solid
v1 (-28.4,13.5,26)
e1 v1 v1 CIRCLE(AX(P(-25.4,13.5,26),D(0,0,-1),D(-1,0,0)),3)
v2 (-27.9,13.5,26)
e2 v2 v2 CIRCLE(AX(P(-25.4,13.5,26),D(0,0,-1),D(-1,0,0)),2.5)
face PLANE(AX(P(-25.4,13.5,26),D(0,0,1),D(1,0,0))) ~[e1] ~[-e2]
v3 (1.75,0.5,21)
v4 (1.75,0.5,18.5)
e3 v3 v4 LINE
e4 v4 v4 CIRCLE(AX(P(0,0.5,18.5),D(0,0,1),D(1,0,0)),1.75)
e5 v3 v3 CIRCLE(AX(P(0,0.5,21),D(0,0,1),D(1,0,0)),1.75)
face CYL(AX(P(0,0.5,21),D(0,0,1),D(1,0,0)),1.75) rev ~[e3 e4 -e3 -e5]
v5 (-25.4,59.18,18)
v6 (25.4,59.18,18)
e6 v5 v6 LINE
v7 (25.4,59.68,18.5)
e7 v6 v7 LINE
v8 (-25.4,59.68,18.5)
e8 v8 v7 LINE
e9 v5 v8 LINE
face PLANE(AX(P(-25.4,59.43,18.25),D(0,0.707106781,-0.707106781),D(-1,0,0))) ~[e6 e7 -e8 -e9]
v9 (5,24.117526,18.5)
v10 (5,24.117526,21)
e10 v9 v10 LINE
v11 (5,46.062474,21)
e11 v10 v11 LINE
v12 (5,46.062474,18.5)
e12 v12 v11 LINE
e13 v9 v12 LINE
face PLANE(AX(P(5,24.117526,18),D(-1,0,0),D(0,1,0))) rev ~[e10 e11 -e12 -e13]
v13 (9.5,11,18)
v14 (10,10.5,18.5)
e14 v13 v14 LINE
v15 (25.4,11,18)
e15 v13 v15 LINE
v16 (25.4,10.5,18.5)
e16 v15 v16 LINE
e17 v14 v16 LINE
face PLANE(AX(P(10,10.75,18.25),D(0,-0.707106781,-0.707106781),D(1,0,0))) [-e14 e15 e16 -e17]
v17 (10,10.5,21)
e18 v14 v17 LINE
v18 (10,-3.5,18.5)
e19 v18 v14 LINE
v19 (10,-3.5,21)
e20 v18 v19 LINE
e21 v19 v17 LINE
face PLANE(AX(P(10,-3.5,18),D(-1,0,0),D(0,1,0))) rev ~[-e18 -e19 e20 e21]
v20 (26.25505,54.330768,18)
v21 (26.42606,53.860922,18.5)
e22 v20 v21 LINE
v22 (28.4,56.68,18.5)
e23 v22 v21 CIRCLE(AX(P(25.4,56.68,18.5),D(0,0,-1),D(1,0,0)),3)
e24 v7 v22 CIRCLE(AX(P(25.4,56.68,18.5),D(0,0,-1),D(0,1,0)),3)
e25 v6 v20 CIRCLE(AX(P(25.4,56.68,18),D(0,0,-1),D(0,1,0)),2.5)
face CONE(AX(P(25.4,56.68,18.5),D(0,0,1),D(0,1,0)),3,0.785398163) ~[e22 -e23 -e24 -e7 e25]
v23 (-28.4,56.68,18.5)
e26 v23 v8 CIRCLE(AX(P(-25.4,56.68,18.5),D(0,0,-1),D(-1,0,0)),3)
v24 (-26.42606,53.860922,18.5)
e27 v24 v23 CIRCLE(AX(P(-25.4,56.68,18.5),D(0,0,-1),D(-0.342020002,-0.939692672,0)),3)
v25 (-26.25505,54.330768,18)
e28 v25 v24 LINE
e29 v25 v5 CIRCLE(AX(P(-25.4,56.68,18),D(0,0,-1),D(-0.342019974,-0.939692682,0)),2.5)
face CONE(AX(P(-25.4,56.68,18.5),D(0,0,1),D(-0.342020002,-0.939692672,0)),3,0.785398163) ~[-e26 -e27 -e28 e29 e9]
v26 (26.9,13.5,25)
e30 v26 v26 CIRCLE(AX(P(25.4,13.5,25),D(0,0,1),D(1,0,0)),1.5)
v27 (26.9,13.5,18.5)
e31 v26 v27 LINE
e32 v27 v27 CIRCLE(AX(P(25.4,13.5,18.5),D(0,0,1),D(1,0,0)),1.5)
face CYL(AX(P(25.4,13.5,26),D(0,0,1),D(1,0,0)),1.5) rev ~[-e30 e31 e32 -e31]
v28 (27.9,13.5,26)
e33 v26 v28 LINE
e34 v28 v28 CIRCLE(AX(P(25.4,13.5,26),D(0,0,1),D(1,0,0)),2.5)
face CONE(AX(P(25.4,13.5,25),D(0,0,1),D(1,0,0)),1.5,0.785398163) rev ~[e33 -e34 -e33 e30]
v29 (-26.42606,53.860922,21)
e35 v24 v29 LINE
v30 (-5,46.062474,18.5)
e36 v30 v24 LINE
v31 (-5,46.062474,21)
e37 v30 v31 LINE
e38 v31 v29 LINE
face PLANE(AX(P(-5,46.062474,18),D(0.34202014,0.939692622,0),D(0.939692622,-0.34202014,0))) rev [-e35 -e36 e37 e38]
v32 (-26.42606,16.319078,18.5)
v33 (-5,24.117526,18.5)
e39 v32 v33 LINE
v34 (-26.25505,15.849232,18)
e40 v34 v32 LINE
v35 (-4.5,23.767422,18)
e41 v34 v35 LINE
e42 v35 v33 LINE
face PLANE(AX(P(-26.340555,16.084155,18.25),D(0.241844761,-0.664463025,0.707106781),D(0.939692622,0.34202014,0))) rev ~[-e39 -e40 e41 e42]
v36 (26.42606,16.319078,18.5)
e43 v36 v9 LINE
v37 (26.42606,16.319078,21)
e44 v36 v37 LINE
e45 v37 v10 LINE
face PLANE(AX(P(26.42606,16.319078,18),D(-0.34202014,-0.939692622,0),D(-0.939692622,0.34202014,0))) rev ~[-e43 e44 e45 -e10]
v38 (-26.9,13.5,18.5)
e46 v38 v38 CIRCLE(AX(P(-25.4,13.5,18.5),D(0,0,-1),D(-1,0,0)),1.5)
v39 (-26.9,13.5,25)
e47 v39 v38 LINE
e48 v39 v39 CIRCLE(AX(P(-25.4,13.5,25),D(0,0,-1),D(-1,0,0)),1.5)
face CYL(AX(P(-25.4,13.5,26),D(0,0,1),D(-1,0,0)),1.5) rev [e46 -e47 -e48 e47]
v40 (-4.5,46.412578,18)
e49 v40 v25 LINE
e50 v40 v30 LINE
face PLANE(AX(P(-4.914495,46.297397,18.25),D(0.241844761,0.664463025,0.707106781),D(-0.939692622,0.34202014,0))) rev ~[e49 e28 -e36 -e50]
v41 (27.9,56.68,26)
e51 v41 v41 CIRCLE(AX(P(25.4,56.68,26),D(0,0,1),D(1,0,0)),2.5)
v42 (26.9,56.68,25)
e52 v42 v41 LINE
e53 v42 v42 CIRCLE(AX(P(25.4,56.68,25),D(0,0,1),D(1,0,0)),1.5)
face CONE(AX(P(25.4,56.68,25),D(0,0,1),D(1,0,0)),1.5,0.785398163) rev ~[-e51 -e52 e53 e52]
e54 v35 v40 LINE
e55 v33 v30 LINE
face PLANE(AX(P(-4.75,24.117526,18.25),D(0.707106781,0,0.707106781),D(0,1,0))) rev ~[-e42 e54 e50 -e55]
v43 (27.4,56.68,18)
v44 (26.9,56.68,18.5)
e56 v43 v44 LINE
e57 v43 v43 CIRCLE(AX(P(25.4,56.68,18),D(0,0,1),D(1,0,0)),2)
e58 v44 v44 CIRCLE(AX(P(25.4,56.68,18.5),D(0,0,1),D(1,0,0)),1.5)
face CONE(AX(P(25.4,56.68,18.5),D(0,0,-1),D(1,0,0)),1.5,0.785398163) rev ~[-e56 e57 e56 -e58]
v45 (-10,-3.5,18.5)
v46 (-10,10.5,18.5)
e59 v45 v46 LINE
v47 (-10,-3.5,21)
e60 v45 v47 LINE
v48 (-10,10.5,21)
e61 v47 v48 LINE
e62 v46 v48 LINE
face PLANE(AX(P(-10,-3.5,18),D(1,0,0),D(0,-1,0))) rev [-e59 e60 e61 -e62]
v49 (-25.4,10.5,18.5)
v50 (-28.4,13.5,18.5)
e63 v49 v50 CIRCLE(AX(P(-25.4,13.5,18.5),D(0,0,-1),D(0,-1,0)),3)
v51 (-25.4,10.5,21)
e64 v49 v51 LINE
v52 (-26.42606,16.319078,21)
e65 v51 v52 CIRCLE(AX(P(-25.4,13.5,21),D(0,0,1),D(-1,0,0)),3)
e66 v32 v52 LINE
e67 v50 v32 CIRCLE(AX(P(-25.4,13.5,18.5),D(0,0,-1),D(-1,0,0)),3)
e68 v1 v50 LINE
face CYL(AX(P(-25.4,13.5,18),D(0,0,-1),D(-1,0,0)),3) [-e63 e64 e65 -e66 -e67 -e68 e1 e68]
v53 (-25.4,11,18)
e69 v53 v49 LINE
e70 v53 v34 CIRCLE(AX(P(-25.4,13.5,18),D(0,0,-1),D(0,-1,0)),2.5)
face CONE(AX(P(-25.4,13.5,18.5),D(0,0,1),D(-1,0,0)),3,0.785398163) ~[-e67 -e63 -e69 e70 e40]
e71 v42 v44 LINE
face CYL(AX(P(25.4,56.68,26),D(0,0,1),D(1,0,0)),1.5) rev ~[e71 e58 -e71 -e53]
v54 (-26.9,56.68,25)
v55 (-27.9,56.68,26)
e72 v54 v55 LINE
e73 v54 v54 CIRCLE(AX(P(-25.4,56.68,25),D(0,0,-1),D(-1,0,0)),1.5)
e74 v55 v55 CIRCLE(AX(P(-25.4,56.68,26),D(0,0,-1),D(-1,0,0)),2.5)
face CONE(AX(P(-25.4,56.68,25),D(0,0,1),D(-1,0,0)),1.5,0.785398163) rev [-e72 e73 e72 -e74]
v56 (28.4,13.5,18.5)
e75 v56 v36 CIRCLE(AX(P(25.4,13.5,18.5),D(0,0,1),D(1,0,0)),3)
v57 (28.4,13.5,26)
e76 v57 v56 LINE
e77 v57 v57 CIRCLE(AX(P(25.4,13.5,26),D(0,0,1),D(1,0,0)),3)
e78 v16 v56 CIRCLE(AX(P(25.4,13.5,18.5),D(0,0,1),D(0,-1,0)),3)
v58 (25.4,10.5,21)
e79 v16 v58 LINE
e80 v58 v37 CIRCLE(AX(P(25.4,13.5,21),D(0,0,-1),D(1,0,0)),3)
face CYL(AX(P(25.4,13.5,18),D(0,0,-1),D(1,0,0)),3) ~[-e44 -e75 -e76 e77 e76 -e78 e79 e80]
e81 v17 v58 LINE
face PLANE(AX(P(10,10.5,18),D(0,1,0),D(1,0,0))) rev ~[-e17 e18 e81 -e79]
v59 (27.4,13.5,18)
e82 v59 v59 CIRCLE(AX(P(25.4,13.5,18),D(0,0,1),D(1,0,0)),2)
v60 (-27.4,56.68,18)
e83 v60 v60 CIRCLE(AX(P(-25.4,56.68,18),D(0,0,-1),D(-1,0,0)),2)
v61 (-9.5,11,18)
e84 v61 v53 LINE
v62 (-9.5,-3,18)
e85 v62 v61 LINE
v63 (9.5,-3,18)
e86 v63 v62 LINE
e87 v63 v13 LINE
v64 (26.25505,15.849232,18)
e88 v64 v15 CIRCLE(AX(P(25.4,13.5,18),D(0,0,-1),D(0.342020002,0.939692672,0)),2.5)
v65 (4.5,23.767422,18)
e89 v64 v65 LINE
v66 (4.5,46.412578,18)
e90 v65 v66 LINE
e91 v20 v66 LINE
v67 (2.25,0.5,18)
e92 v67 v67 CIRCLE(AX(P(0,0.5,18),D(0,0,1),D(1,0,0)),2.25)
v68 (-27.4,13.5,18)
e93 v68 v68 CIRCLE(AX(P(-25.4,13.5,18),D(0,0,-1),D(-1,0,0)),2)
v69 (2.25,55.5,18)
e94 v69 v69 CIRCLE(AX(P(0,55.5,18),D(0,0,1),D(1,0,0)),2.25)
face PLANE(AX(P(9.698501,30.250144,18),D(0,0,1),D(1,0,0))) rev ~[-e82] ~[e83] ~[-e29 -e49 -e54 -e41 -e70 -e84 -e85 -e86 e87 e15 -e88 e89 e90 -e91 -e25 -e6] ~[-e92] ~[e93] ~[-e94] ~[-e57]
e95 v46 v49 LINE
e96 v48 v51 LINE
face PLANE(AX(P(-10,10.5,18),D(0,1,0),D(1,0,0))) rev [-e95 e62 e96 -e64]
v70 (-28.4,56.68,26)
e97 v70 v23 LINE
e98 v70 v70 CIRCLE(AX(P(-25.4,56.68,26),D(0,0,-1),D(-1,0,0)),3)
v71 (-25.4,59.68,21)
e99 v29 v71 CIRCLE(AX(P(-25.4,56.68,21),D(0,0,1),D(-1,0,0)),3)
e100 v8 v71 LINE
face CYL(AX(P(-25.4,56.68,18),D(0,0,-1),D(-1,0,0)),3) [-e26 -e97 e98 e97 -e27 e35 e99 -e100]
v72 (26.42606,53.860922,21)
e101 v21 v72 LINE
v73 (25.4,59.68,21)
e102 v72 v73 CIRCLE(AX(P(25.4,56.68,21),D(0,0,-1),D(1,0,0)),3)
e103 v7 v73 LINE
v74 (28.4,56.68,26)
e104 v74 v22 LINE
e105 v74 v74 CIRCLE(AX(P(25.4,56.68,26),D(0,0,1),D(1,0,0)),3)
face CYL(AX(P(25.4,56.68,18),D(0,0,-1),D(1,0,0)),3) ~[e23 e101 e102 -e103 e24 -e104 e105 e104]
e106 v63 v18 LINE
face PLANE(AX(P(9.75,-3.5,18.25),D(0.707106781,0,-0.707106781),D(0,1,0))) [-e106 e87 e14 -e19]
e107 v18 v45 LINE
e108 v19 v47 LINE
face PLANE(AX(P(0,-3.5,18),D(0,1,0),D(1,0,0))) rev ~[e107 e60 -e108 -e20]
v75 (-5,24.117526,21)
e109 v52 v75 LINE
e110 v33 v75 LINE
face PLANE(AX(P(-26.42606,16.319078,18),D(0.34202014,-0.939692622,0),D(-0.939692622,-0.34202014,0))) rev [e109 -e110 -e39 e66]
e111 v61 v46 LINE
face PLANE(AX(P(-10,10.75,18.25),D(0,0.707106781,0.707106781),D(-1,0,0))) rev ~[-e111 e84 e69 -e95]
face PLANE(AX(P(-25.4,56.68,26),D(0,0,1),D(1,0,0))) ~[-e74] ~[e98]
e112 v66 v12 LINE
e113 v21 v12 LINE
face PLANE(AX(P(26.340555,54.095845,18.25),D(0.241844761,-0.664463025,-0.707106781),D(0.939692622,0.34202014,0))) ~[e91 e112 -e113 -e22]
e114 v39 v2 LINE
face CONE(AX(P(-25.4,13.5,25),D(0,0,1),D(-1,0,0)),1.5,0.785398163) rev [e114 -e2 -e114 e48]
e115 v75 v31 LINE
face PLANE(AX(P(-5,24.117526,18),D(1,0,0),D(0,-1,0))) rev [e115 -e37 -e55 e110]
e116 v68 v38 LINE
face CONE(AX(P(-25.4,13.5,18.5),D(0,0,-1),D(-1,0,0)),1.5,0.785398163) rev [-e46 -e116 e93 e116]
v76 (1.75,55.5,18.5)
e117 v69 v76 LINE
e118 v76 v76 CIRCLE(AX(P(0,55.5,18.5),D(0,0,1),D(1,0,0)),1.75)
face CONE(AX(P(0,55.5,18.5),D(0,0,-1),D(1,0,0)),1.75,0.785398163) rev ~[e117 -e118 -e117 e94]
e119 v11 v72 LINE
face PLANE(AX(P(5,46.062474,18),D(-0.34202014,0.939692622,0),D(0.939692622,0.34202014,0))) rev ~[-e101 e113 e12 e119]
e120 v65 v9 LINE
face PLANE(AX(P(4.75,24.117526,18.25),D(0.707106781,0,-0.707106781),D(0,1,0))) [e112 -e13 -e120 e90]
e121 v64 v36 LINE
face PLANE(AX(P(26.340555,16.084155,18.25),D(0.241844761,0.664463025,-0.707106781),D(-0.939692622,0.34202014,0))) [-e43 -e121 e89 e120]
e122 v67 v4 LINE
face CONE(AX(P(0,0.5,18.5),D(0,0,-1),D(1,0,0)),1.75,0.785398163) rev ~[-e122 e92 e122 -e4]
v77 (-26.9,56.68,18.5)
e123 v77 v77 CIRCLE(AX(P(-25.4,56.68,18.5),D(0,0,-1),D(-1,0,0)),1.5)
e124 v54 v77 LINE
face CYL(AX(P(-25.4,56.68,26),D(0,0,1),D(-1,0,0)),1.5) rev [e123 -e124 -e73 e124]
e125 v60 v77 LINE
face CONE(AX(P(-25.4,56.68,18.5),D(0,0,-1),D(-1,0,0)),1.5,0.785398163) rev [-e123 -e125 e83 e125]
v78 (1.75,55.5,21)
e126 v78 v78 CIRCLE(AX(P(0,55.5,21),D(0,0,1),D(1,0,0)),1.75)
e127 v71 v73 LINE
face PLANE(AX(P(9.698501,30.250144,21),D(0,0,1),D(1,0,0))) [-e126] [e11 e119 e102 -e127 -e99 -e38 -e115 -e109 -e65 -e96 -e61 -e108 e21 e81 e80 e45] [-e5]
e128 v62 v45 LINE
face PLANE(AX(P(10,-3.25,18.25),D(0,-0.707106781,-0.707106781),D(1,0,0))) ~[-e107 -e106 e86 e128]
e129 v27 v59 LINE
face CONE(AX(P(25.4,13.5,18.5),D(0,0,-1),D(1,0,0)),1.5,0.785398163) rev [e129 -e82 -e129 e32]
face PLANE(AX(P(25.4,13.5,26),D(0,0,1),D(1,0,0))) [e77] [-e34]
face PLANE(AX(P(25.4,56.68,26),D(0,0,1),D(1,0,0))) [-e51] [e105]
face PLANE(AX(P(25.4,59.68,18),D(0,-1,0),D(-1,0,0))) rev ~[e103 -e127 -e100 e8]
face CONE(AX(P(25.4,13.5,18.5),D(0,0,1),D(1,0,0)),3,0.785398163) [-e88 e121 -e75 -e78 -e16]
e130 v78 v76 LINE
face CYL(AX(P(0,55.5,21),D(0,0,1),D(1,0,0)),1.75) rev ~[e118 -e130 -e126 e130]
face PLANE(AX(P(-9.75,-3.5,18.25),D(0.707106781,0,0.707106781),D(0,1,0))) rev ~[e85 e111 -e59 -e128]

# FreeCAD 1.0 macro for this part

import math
import FreeCAD as App
import Part
import Sketcher

V = App.Vector
Q = App.Units.Quantity


def edges_at(feature, points):
    """Names of the edges that pass closest to the given points."""
    edges = feature.Shape.Edges
    near = lambda p: min(range(len(edges)), key=lambda i: edges[i].distToShape(Part.Vertex(*p))[0])
    return sorted({f"Edge{near(p) + 1}" for p in points})

doc = App.newDocument("Part")
body = doc.addObject("PartDesign::Body", "Body")

# Sketch on XY plane
sketch1 = doc.addObject("Sketcher::SketchObject", "Sketch")
body.addObject(sketch1)
sketch1.AttachmentSupport = (doc.XY_Plane, [""])
sketch1.MapMode = "FlatFace"
sketch1.AttachmentOffset = App.Placement(V(0, 0, 18), App.Rotation())
sketch1.addGeometry(Part.Circle(V(25.4, 13.5, 0), V(0, 0, 1), 3), False)
sketch1.addConstraint([
    Sketcher.Constraint("Diameter", 0, 6.0),
    Sketcher.Constraint("DistanceX", -1, 1, 0, 3, 25.4),
    Sketcher.Constraint("DistanceY", -1, 1, 0, 3, 13.5),
])
pad1 = doc.addObject("PartDesign::Pad", "Pad")
body.addObject(pad1)
pad1.Profile = sketch1
pad1.Length = 8
body2 = doc.addObject("PartDesign::Body", "Body001")

# Sketch on XY plane
sketch2 = doc.addObject("Sketcher::SketchObject", "Sketch001")
body2.addObject(sketch2)
sketch2.AttachmentSupport = (doc.getObject("XY_Plane001"), [""])
sketch2.MapMode = "FlatFace"
sketch2.AttachmentOffset = App.Placement(V(0, 0, 18), App.Rotation())
sketch2.addGeometry([
    Part.LineSegment(V(0, -3.5, 0), V(10, -3.5, 0)),  # 0
    Part.LineSegment(V(10, -3.5, 0), V(10, 10.5, 0)),  # 1
    Part.LineSegment(V(10, 10.5, 0), V(25.4, 10.5, 0)),  # 2
    Part.ArcOfCircle(Part.Circle(V(25.4, 13.5, 0), V(0, 0, 1), 3), math.radians(-90), math.radians(70)),  # 3
    Part.LineSegment(V(26.4, 16.3, 0), V(5, 24.1, 0)),  # 4
    Part.LineSegment(V(5, 24.1, 0), V(5, 46.1, 0)),  # 5
    Part.LineSegment(V(5, 46.1, 0), V(26.4, 53.9, 0)),  # 6
    Part.ArcOfCircle(Part.Circle(V(25.4, 56.7, 0), V(0, 0, 1), 3), math.radians(-70), math.radians(90)),  # 7
    Part.LineSegment(V(25.4, 59.7, 0), V(0, 59.7, 0)),  # 8
    Part.LineSegment(V(0, 59.7, 0), V(0, -3.5, 0)),  # 9
], False)
sketch2.addConstraint([
    Sketcher.Constraint("Coincident", 0, 2, 1, 1),
    Sketcher.Constraint("Coincident", 1, 2, 2, 1),
    Sketcher.Constraint("Tangent", 2, 2, 3, 1),
    Sketcher.Constraint("Tangent", 3, 2, 4, 1),
    Sketcher.Constraint("Coincident", 4, 2, 5, 1),
    Sketcher.Constraint("Coincident", 5, 2, 6, 1),
    Sketcher.Constraint("Tangent", 6, 2, 7, 1),
    Sketcher.Constraint("Tangent", 7, 2, 8, 1),
    Sketcher.Constraint("Coincident", 8, 2, 9, 1),
    Sketcher.Constraint("Coincident", 9, 2, 0, 1),
    Sketcher.Constraint("Horizontal", 0),
    Sketcher.Constraint("Vertical", 1),
    Sketcher.Constraint("Horizontal", 2),
    Sketcher.Constraint("Vertical", 5),
    Sketcher.Constraint("Horizontal", 8),
    Sketcher.Constraint("Vertical", 9),
    Sketcher.Constraint("Equal", 3, 7),
    Sketcher.Constraint("PointOnObject", 8, 2, -2),
    Sketcher.Constraint("Vertical", 3, 3, 7, 3),
    Sketcher.Constraint("Vertical", 3, 2, 6, 2),
    Sketcher.Constraint("Radius", 3, 3.0),
    Sketcher.Constraint("DistanceX", 0, 1, 0, 2, 10.0),
    Sketcher.Constraint("DistanceY", 1, 1, 1, 2, 14.0),
    Sketcher.Constraint("Angle", 4, Q("160 deg")),
    Sketcher.Constraint("DistanceX", 2, 1, 2, 2, 15.4),
    Sketcher.Constraint("DistanceX", -1, 1, 4, 2, 5.0),
    Sketcher.Constraint("DistanceY", 9, 2, 9, 1, 63.18),
    Sketcher.Constraint("DistanceY", -1, 1, 3, 3, 13.5),
])
pad2 = doc.addObject("PartDesign::Pad", "Pad001")
body2.addObject(pad2)
pad2.Profile = sketch2
pad2.Length = 3
body3 = doc.addObject("PartDesign::Body", "Body002")
body3.AllowCompound = True

# Sketch on XY plane
sketch3 = doc.addObject("Sketcher::SketchObject", "Sketch002")
body3.addObject(sketch3)
sketch3.AttachmentSupport = (doc.getObject("XY_Plane002"), [""])
sketch3.MapMode = "FlatFace"
sketch3.AttachmentOffset = App.Placement(V(0, 0, 18), App.Rotation())
sketch3.addGeometry(Part.Circle(V(25.4, 56.7, 0), V(0, 0, 1), 3), False)
sketch3.addConstraint([
    Sketcher.Constraint("Diameter", 0, 6.0),
    Sketcher.Constraint("DistanceX", -1, 1, 0, 3, 25.4),
    Sketcher.Constraint("DistanceY", -1, 1, 0, 3, 56.68),
])
pad3 = doc.addObject("PartDesign::Pad", "Pad002")
body3.addObject(pad3)
pad3.Profile = sketch3
pad3.Length = 8
doc.recompute()

boolean = doc.addObject("PartDesign::Boolean", "Boolean")
body3.addObject(boolean)
boolean.Type = "Fuse"
boolean.addObjects([body])
doc.recompute()

boolean2 = doc.addObject("PartDesign::Boolean", "Boolean001")
body3.addObject(boolean2)
boolean2.Type = "Fuse"
boolean2.addObjects([body2])

# Sketch on XY plane
sketch4 = doc.addObject("Sketcher::SketchObject", "Sketch003")
body3.addObject(sketch4)
sketch4.AttachmentSupport = (doc.getObject("XY_Plane002"), [""])
sketch4.MapMode = "FlatFace"
sketch4.AttachmentOffset = App.Placement(V(0, 0, 26), App.Rotation())
sketch4.addGeometry([
    Part.Circle(V(25.4, 13.5, 0), V(0, 0, 1), 1.5),
    Part.Circle(V(25.4, 56.7, 0), V(0, 0, 1), 1.5),
], False)
sketch4.addConstraint([
    Sketcher.Constraint("Equal", 0, 1),
    Sketcher.Constraint("Vertical", 0, 3, 1, 3),
    Sketcher.Constraint("Diameter", 0, 3.0),
    Sketcher.Constraint("DistanceX", -1, 1, 0, 3, 25.4),
    Sketcher.Constraint("DistanceY", -1, 1, 0, 3, 13.5),
    Sketcher.Constraint("DistanceY", -1, 1, 1, 3, 56.68),
])
pocket1 = doc.addObject("PartDesign::Pocket", "Pocket")
body3.addObject(pocket1)
pocket1.Profile = sketch4
pocket1.Length = 10
doc.recompute()

chamfer = doc.addObject("PartDesign::Chamfer", "Chamfer")
body3.addObject(chamfer)
chamfer.Base = (pocket1, edges_at(pocket1, [(23.9, 56.68, 26), (23.9, 13.5, 26)]))
chamfer.Size = 1
body4 = doc.addObject("PartDesign::Body", "Body003")
doc.recompute()

mirroring = doc.addObject("Part::Mirroring", "Mirroring")
mirroring.Source = body3
mirroring.Base = V(0, 0, 0)
mirroring.Normal = V(1, 0, 0)
body4.BaseFeature = mirroring
doc.recompute()

boolean3 = doc.addObject("PartDesign::Boolean", "Boolean002")
body4.addObject(boolean3)
boolean3.Type = "Fuse"
boolean3.addObjects([body3])

# Sketch on XY plane
sketch5 = doc.addObject("Sketcher::SketchObject", "Sketch004")
body4.addObject(sketch5)
sketch5.AttachmentSupport = (doc.getObject("XY_Plane003"), [""])
sketch5.MapMode = "FlatFace"
sketch5.AttachmentOffset = App.Placement(V(0, 0, 21), App.Rotation())
sketch5.addGeometry([
    Part.Circle(V(0, 0.5, 0), V(0, 0, 1), 1.8),
    Part.Circle(V(0, 55.5, 0), V(0, 0, 1), 1.8),
], False)
sketch5.addConstraint([
    Sketcher.Constraint("Equal", 0, 1),
    Sketcher.Constraint("PointOnObject", 0, 3, -2),
    Sketcher.Constraint("PointOnObject", 1, 3, -2),
    Sketcher.Constraint("Diameter", 0, 3.5),
    Sketcher.Constraint("DistanceY", 0, 3, 1, 3, 55.0),
    Sketcher.Constraint("DistanceY", -1, 1, 0, 3, 0.5),
])
pocket2 = doc.addObject("PartDesign::Pocket", "Pocket001")
body4.addObject(pocket2)
pocket2.Profile = sketch5
pocket2.Length = 5
doc.recompute()

chamfer2 = doc.addObject("PartDesign::Chamfer", "Chamfer001")
body4.addObject(chamfer2)
chamfer2.Base = (pocket2, edges_at(pocket2, [
    (-23.9, 13.5, 18),
    (-23.9, 13.5, 18),
    (-1.75, 55.5, 18),
    (-1.75, 55.5, 18),
    (-1.75, 0.5, 18),
    (-1.75, 0.5, 18),
    (-27.521, 58.801, 18),
    (-27.857, 54.959, 18),
    (0, 59.68, 18),
    (-15.713, 49.962, 18),
    (27.521, 58.801, 18),
    (-5, 35.09, 18),
    (27.857, 54.959, 18),
    (-15.713, 20.218, 18),
    (15.713, 49.962, 18),
    (-27.857, 15.221, 18),
    (5, 35.09, 18),
    (-27.521, 11.379, 18),
    (15.713, 20.218, 18),
    (-17.7, 10.5, 18),
    (27.857, 15.221, 18),
    (-10, 3.5, 18),
    (27.521, 11.379, 18),
    (0, -3.5, 18),
    (17.7, 10.5, 18),
    (10, 3.5, 18),
    (23.9, 56.68, 18),
    (23.9, 56.68, 18),
    (23.9, 13.5, 18),
    (23.9, 13.5, 18),
    (-23.9, 56.68, 18),
    (-23.9, 56.68, 18),
]))
chamfer2.Size = 0.5
mirroring.Visibility = False

doc.recompute()
